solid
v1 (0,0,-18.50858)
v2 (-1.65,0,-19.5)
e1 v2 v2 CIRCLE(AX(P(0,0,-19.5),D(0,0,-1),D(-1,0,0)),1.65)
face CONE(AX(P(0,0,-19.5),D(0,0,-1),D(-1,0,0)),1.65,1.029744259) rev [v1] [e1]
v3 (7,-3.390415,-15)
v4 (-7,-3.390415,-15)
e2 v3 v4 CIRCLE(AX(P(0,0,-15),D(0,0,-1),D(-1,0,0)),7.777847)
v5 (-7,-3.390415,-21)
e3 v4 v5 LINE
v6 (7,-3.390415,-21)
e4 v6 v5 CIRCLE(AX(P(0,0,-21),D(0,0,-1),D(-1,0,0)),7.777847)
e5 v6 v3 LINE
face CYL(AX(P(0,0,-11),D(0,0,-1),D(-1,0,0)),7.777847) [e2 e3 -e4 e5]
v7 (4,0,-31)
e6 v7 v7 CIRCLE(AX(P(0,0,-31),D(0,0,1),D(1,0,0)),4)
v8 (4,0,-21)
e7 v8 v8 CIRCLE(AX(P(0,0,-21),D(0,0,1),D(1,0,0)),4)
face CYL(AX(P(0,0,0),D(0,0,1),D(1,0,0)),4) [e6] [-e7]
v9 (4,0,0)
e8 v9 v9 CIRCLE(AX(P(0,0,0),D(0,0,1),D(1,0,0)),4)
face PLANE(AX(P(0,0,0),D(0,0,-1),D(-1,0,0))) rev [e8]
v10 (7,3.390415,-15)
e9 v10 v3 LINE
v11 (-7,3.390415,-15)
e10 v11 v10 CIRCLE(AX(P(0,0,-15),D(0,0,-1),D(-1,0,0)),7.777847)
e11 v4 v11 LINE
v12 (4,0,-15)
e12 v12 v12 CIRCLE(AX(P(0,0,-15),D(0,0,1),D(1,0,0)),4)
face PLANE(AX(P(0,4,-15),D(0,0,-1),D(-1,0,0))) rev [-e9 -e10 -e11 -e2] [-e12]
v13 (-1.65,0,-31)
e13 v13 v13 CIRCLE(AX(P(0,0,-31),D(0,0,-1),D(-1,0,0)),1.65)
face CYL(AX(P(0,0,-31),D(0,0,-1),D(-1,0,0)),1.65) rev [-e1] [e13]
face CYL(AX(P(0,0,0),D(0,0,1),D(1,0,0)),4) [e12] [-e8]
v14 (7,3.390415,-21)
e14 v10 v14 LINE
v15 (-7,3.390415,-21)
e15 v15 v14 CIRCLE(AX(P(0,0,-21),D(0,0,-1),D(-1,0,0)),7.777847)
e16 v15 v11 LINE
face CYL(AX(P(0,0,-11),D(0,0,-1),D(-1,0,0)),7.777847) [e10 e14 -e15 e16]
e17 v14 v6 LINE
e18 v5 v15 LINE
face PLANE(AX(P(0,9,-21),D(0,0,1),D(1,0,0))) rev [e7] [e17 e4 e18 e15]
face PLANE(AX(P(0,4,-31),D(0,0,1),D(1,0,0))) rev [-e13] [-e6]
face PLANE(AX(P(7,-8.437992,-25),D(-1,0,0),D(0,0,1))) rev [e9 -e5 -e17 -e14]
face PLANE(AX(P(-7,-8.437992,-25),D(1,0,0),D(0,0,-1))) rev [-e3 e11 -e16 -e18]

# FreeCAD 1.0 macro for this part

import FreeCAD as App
import Part
import Sketcher
from FreeCAD import Vector
Q = App.Units.Quantity


def add_polygon(sketch, points):
    """Adds a closed chain of lines whose ends are joined by coincident constraints."""
    first, n = sketch.GeometryCount, len(points)
    for a, b in zip(points, points[1:] + points[:1]):
        sketch.addGeometry(Part.LineSegment(App.Vector(*a, 0), App.Vector(*b, 0)), False)
    for i in range(n):
        sketch.addConstraint(Sketcher.Constraint("Coincident", first + i, 2, first + (i + 1) % n, 1))

doc = App.newDocument("Part")
body = doc.addObject("PartDesign::Body", "Body")

sketch1 = body.newObject("Sketcher::SketchObject", "Sketch")
sketch1.AttachmentSupport = (doc.getObject("YZ_Plane"), [""])
sketch1.MapMode = "FlatFace"
add_polygon(sketch1, [(4, 0), (0, 0), (0, -31), (4, -31), (4, -21), (9, -21), (9, -15), (4, -15)])
sketch1.addConstraint([
    Sketcher.Constraint("Horizontal", 0),
    Sketcher.Constraint("Vertical", 1),
    Sketcher.Constraint("Horizontal", 2),
    Sketcher.Constraint("Vertical", 3),
    Sketcher.Constraint("Horizontal", 4),
    Sketcher.Constraint("Vertical", 5),
    Sketcher.Constraint("Horizontal", 6),
    Sketcher.Constraint("Vertical", 7),
    Sketcher.Constraint("Coincident", 0, 2, -1, 1),
    Sketcher.Constraint("Vertical", 3, 2, 6, 2),
    Sketcher.Constraint("DistanceX", 0, 2, 0, 1, Q("4 mm")),
    Sketcher.Constraint("DistanceX", 4, 1, 4, 2, Q("5 mm")),
    Sketcher.Constraint("DistanceY", 1, 2, 1, 1, Q("31 mm")),
    Sketcher.Constraint("DistanceY", 3, 1, 3, 2, Q("10 mm")),
    Sketcher.Constraint("DistanceY", 5, 1, 5, 2, Q("6 mm")),
])
revolution = body.newObject("PartDesign::Revolution", "Revolution")
revolution.Profile = sketch1
revolution.ReferenceAxis = (sketch1, ["V_Axis"])
revolution.Angle = 360

sketch2 = body.newObject("Sketcher::SketchObject", "Sketch001")
sketch2.AttachmentSupport = (doc.getObject("XY_Plane"), [""])
sketch2.MapMode = "FlatFace"
sketch2.AttachmentOffset = App.Placement(Vector(0, 0, -15), App.Rotation())
add_polygon(sketch2, [(-15, 8.385906), (-15, -8.437992), (-7, -8.437992), (-7, 8.385906)])
add_polygon(sketch2, [(7, 8.385906), (7, -8.437992), (15, -8.437992), (15, 8.385906)])
sketch2.addConstraint([
    Sketcher.Constraint("Vertical", 0),
    Sketcher.Constraint("Horizontal", 1),
    Sketcher.Constraint("Vertical", 2),
    Sketcher.Constraint("Horizontal", 3),
    Sketcher.Constraint("Vertical", 4),
    Sketcher.Constraint("Horizontal", 5),
    Sketcher.Constraint("Vertical", 6),
    Sketcher.Constraint("Horizontal", 7),
    Sketcher.Constraint("Symmetric", 1, 2, 4, 2, -2),
    Sketcher.Constraint("Symmetric", 3, 2, 6, 2, -2),
    Sketcher.Constraint("DistanceX", 1, 1, 1, 2, Q("8 mm")),
    Sketcher.Constraint("DistanceX", 0, 2, -1, 1, Q("15 mm")),
    Sketcher.Constraint("DistanceY", 0, 2, 0, 1, Q("16.823898 mm")),
    Sketcher.Constraint("DistanceY", 0, 2, -1, 1, Q("8.437992 mm")),
])
pocket1 = body.newObject("PartDesign::Pocket", "Pocket")
pocket1.Profile = sketch2
pocket1.Length = 10

sketch3 = body.newObject("Sketcher::SketchObject", "Sketch002")
sketch3.AttachmentSupport = (doc.getObject("XY_Plane"), [""])
sketch3.MapMode = "FlatFace"
sketch3.AttachmentOffset = App.Placement(Vector(0, 0, -31), App.Rotation())
sketch3.addGeometry(Part.Circle(Vector(0, 0, 0), Vector(0, 0, 1), 1.65), False)
sketch3.addConstraint([
    Sketcher.Constraint("Coincident", 0, 3, -1, 1),
    Sketcher.Constraint("Diameter", 0, Q("3.3 mm")),
])
doc.recompute()
hole = body.newObject("PartDesign::Hole", "Hole")
hole.Profile = sketch3
hole.ThreadType = "None"
hole.Diameter = 3.3
hole.DepthType = "Dimension"
hole.Depth = 11.5
hole.DrillPoint = "Angled"
hole.DrillPointAngle = 118
hole.Reversed = True

sketch4 = body.newObject("Sketcher::SketchObject", "Sketch003")
sketch4.AttachmentSupport = (doc.getObject("XY_Plane"), [""])
sketch4.MapMode = "FlatFace"
sketch4.AttachmentOffset = App.Placement(Vector(0, 0, -21), App.Rotation())
add_polygon(sketch4, [(11.848, 13.848), (11.848, -13.848), (-11.848, -13.848), (-11.848, 13.848)])
sketch4.addGeometry(Part.Circle(Vector(0, 0, 0), Vector(0, 0, 1), 7.777847), False)
sketch4.addConstraint([
    Sketcher.Constraint("Vertical", 0),
    Sketcher.Constraint("Horizontal", 1),
    Sketcher.Constraint("Vertical", 2),
    Sketcher.Constraint("Horizontal", 3),
    Sketcher.Constraint("Coincident", 4, 3, -1, 1),
    Sketcher.Constraint("Symmetric", 0, 2, 2, 2, -1, 1),
    Sketcher.Constraint("DistanceX", 1, 2, 1, 1, Q("23.696 mm")),
    Sketcher.Constraint("DistanceY", 0, 2, 0, 1, Q("27.696 mm")),
    Sketcher.Constraint("Diameter", 4, Q("15.555695 mm")),
])
pocket2 = body.newObject("PartDesign::Pocket", "Pocket001")
pocket2.Profile = sketch4
pocket2.Length = 10
pocket2.Reversed = True

doc.recompute()
